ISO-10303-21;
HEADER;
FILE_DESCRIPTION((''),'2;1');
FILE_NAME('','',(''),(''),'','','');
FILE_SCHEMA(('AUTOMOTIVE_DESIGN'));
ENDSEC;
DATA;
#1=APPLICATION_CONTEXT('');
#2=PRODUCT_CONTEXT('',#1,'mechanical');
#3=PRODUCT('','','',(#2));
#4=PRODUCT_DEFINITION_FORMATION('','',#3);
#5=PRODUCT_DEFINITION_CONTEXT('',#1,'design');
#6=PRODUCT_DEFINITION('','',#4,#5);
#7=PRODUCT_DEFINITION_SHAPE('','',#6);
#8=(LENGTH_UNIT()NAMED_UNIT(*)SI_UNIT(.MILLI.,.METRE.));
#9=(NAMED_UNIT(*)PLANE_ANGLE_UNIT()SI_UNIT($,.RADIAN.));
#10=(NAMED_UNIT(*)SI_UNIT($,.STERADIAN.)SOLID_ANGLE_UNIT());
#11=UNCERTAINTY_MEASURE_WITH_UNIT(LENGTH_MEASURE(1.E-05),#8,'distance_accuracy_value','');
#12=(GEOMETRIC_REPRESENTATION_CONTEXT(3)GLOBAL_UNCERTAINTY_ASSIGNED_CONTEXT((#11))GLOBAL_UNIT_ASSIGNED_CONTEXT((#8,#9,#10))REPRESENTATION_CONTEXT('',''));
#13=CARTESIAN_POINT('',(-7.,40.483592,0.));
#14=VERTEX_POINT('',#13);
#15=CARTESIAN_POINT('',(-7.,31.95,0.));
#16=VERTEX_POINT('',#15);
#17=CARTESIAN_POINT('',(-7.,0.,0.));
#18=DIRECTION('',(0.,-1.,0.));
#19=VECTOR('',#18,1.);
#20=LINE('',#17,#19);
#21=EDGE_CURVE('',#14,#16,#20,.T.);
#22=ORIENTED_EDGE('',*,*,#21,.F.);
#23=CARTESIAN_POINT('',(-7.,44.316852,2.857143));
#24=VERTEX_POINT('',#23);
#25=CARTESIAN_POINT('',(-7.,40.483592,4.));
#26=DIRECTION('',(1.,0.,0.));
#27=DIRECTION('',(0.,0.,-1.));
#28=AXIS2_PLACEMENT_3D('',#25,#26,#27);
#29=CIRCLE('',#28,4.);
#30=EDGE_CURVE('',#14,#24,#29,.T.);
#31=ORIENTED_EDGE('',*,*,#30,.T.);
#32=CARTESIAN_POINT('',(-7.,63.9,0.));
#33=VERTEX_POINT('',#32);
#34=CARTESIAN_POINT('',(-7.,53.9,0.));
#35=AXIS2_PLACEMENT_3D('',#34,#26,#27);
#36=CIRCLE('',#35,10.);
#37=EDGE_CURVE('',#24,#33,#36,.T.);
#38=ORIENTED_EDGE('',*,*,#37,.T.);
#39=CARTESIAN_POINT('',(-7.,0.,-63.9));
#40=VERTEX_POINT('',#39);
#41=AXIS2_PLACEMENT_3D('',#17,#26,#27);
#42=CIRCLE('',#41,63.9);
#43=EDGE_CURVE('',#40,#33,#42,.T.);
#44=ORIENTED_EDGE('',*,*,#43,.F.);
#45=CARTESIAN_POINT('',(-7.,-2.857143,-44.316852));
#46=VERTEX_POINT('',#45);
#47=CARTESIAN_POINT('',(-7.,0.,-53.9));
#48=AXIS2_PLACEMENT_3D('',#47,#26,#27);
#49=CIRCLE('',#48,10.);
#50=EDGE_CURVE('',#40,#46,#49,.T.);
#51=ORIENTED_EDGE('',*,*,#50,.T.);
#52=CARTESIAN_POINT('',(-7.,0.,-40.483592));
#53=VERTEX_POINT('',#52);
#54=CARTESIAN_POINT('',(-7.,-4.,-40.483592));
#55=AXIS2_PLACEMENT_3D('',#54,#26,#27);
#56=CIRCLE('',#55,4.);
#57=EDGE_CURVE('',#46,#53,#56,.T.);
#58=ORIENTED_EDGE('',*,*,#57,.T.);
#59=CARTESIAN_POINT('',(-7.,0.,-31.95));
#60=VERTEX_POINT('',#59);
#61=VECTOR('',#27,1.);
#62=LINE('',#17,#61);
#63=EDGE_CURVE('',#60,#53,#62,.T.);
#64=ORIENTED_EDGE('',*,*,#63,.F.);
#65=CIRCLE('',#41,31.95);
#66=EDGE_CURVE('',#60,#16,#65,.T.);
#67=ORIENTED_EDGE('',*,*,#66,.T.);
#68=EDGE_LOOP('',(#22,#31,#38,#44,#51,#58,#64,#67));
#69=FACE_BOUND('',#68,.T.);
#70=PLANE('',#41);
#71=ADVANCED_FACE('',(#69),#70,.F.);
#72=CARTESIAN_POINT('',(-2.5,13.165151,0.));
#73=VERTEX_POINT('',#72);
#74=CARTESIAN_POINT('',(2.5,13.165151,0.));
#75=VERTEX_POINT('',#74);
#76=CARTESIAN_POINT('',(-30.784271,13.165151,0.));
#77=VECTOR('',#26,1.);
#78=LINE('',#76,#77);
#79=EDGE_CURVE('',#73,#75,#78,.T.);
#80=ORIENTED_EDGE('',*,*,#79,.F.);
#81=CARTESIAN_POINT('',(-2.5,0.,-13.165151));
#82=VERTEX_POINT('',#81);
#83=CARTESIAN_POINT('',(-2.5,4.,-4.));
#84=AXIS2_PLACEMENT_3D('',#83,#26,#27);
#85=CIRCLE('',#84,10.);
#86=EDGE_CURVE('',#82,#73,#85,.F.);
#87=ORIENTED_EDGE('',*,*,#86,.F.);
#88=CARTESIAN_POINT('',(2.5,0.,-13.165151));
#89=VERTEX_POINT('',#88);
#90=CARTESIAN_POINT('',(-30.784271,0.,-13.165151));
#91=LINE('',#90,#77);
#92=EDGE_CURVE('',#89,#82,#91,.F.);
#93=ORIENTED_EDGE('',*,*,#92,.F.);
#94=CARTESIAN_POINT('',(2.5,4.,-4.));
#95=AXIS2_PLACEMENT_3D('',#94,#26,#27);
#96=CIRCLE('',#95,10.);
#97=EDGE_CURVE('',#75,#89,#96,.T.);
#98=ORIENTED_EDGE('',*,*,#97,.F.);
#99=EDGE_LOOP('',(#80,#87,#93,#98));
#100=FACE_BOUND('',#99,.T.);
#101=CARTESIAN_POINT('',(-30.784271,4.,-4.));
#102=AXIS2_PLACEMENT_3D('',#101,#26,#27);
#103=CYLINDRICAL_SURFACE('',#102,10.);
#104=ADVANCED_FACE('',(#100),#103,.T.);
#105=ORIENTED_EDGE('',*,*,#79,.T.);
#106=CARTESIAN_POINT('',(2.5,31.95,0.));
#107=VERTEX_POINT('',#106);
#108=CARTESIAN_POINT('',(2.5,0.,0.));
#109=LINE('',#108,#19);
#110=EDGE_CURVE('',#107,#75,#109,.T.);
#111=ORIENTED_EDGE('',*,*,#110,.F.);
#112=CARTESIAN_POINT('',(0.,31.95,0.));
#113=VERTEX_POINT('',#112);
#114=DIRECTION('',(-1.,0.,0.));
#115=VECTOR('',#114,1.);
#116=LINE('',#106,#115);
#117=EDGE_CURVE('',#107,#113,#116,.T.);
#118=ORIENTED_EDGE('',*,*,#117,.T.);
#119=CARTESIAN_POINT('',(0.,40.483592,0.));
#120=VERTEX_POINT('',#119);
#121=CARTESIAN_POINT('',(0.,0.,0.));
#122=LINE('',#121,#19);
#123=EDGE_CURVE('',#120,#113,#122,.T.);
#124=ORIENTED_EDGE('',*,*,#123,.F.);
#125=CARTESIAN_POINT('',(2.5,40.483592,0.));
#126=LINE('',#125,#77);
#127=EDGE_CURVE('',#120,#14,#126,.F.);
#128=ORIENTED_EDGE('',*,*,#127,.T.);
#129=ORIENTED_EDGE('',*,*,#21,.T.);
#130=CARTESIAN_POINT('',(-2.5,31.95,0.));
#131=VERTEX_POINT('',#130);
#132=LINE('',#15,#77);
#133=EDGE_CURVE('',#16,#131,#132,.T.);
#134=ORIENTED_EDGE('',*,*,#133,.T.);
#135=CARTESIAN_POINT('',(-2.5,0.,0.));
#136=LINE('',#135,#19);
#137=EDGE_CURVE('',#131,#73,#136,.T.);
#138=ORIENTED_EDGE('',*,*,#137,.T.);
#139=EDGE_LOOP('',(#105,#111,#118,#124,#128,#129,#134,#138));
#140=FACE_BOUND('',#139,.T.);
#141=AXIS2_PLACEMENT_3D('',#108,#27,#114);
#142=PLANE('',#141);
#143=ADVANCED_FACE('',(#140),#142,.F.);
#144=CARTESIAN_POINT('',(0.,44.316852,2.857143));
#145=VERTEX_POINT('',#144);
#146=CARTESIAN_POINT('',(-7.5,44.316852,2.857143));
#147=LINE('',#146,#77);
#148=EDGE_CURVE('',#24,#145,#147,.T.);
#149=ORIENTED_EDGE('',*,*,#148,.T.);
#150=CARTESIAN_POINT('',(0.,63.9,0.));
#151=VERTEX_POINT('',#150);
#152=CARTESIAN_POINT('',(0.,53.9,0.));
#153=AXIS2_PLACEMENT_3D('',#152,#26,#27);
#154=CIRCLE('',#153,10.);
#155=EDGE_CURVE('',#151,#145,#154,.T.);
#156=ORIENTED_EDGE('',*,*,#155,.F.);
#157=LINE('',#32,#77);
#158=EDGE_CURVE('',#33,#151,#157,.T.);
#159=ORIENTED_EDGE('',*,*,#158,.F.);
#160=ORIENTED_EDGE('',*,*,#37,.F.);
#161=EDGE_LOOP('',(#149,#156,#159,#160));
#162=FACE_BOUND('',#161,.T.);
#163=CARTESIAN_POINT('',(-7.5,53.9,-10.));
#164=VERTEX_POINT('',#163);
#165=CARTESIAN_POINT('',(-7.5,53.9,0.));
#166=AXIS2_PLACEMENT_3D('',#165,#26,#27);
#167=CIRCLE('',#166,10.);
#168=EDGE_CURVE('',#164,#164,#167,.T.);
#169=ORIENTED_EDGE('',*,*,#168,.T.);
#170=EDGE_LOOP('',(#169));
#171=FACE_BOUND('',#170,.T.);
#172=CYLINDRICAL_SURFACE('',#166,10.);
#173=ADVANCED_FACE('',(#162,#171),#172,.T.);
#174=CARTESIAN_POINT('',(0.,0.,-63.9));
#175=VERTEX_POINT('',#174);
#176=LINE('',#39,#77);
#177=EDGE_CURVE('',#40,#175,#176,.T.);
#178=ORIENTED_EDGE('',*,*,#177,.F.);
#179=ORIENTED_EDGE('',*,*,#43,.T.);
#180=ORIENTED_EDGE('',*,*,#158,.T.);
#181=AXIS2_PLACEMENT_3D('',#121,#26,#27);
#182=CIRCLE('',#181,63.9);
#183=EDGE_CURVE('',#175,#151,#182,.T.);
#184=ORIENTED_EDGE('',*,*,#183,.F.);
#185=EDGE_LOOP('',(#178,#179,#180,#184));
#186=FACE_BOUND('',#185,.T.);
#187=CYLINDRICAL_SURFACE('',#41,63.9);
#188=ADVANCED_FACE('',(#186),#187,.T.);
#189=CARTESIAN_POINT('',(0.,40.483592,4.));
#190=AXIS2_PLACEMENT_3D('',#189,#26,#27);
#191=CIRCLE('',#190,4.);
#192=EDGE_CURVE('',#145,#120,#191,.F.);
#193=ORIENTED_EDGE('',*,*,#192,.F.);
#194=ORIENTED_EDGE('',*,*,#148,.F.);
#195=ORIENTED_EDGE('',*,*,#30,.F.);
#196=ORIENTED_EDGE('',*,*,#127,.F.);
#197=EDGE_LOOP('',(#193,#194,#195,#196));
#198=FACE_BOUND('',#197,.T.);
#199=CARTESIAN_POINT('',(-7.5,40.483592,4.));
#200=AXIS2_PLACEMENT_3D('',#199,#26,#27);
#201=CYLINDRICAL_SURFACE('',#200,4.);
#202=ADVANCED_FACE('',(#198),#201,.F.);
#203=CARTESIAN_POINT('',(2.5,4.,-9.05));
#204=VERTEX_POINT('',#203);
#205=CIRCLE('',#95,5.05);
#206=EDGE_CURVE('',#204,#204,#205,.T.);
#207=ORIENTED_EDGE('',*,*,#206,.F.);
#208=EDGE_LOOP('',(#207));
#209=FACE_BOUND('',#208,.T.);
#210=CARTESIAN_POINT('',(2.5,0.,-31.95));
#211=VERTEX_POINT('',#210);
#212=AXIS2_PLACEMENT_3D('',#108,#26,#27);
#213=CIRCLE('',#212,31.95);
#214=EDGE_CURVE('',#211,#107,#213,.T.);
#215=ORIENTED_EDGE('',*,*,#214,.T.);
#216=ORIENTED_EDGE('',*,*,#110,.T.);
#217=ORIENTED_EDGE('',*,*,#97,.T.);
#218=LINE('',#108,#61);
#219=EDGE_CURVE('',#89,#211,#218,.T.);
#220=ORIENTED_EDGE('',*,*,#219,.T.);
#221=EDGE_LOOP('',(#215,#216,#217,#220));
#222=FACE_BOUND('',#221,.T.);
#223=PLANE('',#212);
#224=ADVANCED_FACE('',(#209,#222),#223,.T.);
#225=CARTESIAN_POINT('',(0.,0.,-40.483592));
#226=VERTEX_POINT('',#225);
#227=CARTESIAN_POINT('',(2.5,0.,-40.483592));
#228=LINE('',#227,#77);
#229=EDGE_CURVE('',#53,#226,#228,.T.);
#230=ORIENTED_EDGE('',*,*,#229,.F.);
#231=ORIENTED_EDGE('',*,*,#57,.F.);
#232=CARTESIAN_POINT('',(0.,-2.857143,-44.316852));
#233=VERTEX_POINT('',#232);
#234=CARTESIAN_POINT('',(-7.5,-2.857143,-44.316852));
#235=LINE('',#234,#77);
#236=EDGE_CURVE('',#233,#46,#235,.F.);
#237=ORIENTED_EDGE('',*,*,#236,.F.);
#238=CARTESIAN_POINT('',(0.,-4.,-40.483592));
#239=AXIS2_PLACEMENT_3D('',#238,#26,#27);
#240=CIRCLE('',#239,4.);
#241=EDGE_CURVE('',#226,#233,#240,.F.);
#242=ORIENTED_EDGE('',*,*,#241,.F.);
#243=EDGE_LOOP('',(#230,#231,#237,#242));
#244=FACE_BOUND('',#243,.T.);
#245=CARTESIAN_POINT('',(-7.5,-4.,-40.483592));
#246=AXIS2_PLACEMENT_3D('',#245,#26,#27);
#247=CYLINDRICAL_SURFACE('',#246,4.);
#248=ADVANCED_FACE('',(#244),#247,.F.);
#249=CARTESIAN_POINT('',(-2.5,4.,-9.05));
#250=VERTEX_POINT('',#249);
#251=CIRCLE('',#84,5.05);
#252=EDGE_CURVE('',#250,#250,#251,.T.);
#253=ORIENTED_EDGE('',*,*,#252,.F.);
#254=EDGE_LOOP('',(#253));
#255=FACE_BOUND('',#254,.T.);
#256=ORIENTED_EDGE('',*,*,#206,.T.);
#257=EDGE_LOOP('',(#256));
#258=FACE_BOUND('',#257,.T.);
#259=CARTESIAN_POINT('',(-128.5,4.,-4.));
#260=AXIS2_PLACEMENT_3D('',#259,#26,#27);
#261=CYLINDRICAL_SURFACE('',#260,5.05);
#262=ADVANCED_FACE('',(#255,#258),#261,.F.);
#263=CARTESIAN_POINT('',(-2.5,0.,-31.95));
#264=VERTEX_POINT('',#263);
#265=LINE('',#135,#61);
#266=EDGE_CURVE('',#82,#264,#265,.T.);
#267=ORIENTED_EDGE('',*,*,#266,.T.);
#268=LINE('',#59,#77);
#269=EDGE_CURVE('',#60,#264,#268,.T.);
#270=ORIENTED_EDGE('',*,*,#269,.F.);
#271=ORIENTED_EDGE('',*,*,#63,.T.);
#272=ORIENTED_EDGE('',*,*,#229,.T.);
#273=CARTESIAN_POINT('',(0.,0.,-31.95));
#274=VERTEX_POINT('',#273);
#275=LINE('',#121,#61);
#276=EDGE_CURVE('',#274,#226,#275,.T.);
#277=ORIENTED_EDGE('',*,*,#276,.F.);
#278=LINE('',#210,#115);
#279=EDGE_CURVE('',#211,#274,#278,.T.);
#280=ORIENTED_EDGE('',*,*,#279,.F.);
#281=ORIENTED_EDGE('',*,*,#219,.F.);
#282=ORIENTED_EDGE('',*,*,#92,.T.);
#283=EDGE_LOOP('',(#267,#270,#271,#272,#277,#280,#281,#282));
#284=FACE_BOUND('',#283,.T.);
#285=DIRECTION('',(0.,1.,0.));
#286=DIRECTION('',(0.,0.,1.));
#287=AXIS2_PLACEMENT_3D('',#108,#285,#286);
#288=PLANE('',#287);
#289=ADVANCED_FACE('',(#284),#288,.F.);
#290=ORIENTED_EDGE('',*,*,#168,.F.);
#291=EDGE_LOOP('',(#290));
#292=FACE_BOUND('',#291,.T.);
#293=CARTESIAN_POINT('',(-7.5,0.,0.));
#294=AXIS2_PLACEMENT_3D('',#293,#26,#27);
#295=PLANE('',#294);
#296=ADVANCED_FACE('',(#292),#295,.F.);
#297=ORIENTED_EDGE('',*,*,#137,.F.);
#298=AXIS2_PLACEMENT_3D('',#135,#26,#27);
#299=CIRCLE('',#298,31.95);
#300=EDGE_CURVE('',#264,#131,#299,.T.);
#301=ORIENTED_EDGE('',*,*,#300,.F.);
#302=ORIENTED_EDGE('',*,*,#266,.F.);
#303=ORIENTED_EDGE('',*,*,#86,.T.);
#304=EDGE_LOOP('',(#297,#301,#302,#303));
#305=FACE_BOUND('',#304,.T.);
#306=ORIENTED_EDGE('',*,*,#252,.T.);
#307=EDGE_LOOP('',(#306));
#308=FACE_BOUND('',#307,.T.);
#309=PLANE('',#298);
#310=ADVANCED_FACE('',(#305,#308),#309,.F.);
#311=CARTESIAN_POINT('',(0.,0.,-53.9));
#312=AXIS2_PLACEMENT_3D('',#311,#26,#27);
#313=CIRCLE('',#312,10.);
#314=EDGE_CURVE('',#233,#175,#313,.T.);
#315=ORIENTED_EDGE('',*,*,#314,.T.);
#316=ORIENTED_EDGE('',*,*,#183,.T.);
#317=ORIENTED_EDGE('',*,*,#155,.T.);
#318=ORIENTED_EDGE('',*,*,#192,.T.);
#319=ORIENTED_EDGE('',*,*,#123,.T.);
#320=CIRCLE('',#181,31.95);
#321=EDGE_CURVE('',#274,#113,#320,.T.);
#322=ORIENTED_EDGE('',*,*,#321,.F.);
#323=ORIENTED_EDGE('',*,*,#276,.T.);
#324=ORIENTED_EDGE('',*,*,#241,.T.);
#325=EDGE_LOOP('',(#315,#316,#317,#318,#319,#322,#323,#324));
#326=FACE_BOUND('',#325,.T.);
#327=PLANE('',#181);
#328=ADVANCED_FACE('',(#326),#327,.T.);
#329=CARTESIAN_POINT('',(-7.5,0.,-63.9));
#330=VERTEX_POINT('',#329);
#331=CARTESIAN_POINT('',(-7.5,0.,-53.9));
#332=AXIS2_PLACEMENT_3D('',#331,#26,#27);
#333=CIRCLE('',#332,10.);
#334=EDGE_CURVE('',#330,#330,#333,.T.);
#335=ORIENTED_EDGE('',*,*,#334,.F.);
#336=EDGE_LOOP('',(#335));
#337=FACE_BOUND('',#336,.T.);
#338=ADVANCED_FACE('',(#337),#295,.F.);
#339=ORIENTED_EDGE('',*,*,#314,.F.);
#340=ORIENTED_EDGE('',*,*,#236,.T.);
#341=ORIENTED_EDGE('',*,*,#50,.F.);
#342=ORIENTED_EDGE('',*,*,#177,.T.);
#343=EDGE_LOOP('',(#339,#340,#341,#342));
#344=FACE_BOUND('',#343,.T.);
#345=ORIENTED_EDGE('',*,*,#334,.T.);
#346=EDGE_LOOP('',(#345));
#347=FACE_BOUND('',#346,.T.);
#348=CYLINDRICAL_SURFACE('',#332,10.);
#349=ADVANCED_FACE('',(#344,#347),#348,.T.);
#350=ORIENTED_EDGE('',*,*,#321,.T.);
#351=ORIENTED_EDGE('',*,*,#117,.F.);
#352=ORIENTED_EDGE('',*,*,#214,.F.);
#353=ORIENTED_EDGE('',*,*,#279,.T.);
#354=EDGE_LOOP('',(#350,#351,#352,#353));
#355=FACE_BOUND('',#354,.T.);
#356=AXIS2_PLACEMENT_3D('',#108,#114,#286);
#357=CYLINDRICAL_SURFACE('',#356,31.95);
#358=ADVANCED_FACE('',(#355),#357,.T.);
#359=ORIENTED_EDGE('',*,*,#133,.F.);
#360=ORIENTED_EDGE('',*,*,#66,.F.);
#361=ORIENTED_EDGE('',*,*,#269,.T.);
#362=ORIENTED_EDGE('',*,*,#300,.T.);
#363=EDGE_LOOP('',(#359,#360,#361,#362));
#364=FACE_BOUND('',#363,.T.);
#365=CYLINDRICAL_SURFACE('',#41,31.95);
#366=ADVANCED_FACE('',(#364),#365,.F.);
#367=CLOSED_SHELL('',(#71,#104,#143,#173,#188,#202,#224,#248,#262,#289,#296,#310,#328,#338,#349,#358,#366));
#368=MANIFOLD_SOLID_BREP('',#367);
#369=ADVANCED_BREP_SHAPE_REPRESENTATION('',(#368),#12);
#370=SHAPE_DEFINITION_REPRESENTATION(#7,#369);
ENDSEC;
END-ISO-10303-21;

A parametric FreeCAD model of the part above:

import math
import FreeCAD as App
import Part
import Sketcher


def edges_at(feature, points):
    """Names of the edges that pass closest to the given points."""
    edges = feature.Shape.Edges
    near = lambda p: min(range(len(edges)), key=lambda i: edges[i].distToShape(Part.Vertex(*p))[0])
    return sorted({f"Edge{near(p) + 1}" for p in points})

doc = App.newDocument("Part")
body = doc.addObject("PartDesign::Body", "Body")

sketch1 = body.newObject("Sketcher::SketchObject", "Sketch")
sketch1.AttachmentSupport = (doc.getObject("YZ_Plane"), [""])
sketch1.MapMode = "FlatFace"
sketch1.addGeometry(Part.ArcOfCircle(Part.Circle(App.Vector(0, 0, 0), App.Vector(0, 0, 1), 32), math.radians(-90), math.radians(0)), False)
sketch1.addGeometry(Part.LineSegment(App.Vector(32, 0, 0), App.Vector(0, 0, 0)), False)
sketch1.addGeometry(Part.LineSegment(App.Vector(0, 0, 0), App.Vector(0, -32, 0)), False)
sketch1.addConstraint(Sketcher.Constraint("Coincident", 0, 2, 1, 1))
sketch1.addConstraint(Sketcher.Constraint("Coincident", 1, 2, 2, 1))
sketch1.addConstraint(Sketcher.Constraint("Coincident", 2, 2, 0, 1))
sketch1.addConstraint(Sketcher.Constraint("Horizontal", 1))
sketch1.addConstraint(Sketcher.Constraint("Vertical", 2))
sketch1.addConstraint(Sketcher.Constraint("Coincident", 0, 3, -1, 1))
sketch1.addConstraint(Sketcher.Constraint("Coincident", 1, 2, -1, 1))
sketch1.addConstraint(Sketcher.Constraint("Radius", 0, 31.95))
pad1 = body.newObject("PartDesign::Pad", "Pad")
pad1.Profile = sketch1
pad1.Length = 5
pad1.Midplane = True

sketch2 = body.newObject("Sketcher::SketchObject", "Sketch001")
sketch2.AttachmentSupport = (doc.getObject("YZ_Plane"), [""])
sketch2.MapMode = "FlatFace"
sketch2.addGeometry(Part.ArcOfCircle(Part.Circle(App.Vector(54, 0, 0), App.Vector(0, 0, 1), 10), math.radians(180), math.radians(270)), False)
sketch2.addGeometry(Part.LineSegment(App.Vector(44, 0, 0), App.Vector(32, 0, 0)), False)
sketch2.addGeometry(Part.ArcOfCircle(Part.Circle(App.Vector(0, 0, 0), App.Vector(0, 0, 1), 32), math.radians(-90), math.radians(0)), False)
sketch2.addGeometry(Part.LineSegment(App.Vector(0, -32, 0), App.Vector(0, -44, 0)), False)
sketch2.addGeometry(Part.ArcOfCircle(Part.Circle(App.Vector(0, -54, 0), App.Vector(0, 0, 1), 10), math.radians(-90), math.radians(90)), False)
sketch2.addGeometry(Part.ArcOfCircle(Part.Circle(App.Vector(0, 0, 0), App.Vector(0, 0, 1), 64), math.radians(-90), math.radians(0)), False)
sketch2.addGeometry(Part.ArcOfCircle(Part.Circle(App.Vector(54, 0, 0), App.Vector(0, 0, 1), 10), math.radians(-90), math.radians(0)), False)
sketch2.addConstraint(Sketcher.Constraint("Coincident", 0, 1, 1, 1))
sketch2.addConstraint(Sketcher.Constraint("Coincident", 1, 2, 2, 2))
sketch2.addConstraint(Sketcher.Constraint("Coincident", 2, 1, 3, 1))
sketch2.addConstraint(Sketcher.Constraint("Coincident", 3, 2, 4, 2))
sketch2.addConstraint(Sketcher.Constraint("Tangent", 4, 1, 5, 1))
sketch2.addConstraint(Sketcher.Constraint("Tangent", 5, 2, 6, 2))
sketch2.addConstraint(Sketcher.Constraint("Tangent", 6, 1, 0, 2))
sketch2.addConstraint(Sketcher.Constraint("Horizontal", 1))
sketch2.addConstraint(Sketcher.Constraint("Vertical", 3))
sketch2.addConstraint(Sketcher.Constraint("Coincident", 2, 3, -1, 1))
sketch2.addConstraint(Sketcher.Constraint("Coincident", 5, 3, -1, 1))
sketch2.addConstraint(Sketcher.Constraint("Equal", 0, 4))
sketch2.addConstraint(Sketcher.Constraint("Equal", 4, 6))
sketch2.addConstraint(Sketcher.Constraint("PointOnObject", 0, 3, -1))
sketch2.addConstraint(Sketcher.Constraint("PointOnObject", 4, 3, -2))
sketch2.addConstraint(Sketcher.Constraint("PointOnObject", 0, 1, -1))
sketch2.addConstraint(Sketcher.Constraint("PointOnObject", 2, 1, -2))
sketch2.addConstraint(Sketcher.Constraint("Vertical", 0, 3, 6, 1))
sketch2.addConstraint(Sketcher.Constraint("Radius", 0, 10.0))
sketch2.addConstraint(Sketcher.Constraint("Radius", 5, 63.9))
sketch2.addConstraint(Sketcher.Constraint("Radius", 2, 31.95))
pad2 = body.newObject("PartDesign::Pad", "Pad001")
pad2.Profile = sketch2
pad2.Length = 7
pad2.Reversed = True

sketch3 = body.newObject("Sketcher::SketchObject", "Sketch002")
sketch3.AttachmentSupport = (doc.getObject("YZ_Plane"), [""])
sketch3.MapMode = "FlatFace"
sketch3.addGeometry(Part.Circle(App.Vector(54, 0, 0), App.Vector(0, 0, 1), 10), False)
sketch3.addGeometry(Part.Circle(App.Vector(0, -54, 0), App.Vector(0, 0, 1), 10), False)
sketch3.addConstraint(Sketcher.Constraint("Equal", 0, 1))
sketch3.addConstraint(Sketcher.Constraint("PointOnObject", 0, 3, -1))
sketch3.addConstraint(Sketcher.Constraint("PointOnObject", 1, 3, -2))
sketch3.addConstraint(Sketcher.Constraint("Diameter", 0, 20.0))
sketch3.addConstraint(Sketcher.Constraint("DistanceX", -1, 1, 0, 3, 53.9))
sketch3.addConstraint(Sketcher.Constraint("DistanceY", 1, 3, -1, 1, 53.9))
pad3 = body.newObject("PartDesign::Pad", "Pad002")
pad3.Profile = sketch3
pad3.Length = 7.5
pad3.Reversed = True
doc.recompute()

fillet = body.newObject("PartDesign::Fillet", "Fillet")
fillet.Base = (pad3, edges_at(pad3, [(0, 0, 0)]))
fillet.Radius = 4
doc.recompute()

fillet2 = body.newObject("PartDesign::Fillet", "Fillet001")
fillet2.Base = (fillet, edges_at(fillet, [(-3.5, 43.9, 0), (-3.5, 0, -43.9)]))
fillet2.Radius = 4

sketch4 = body.newObject("Sketcher::SketchObject", "Sketch003")
sketch4.AttachmentSupport = (doc.getObject("YZ_Plane"), [""])
sketch4.MapMode = "FlatFace"
sketch4.AttachmentOffset = App.Placement(App.Vector(0, 0, 2.5), App.Rotation())
sketch4.addGeometry(Part.Circle(App.Vector(4, -4, 0), App.Vector(0, 0, 1), 10), False)
sketch4.addConstraint(Sketcher.Constraint("Diameter", 0, 20.0))
sketch4.addConstraint(Sketcher.Constraint("DistanceX", -1, 1, 0, 3, 4.0))
sketch4.addConstraint(Sketcher.Constraint("DistanceY", 0, 3, -1, 1, 4.0))
pad4 = body.newObject("PartDesign::Pad", "Pad003")
pad4.Profile = sketch4
pad4.Length = 5
pad4.Reversed = True

sketch5 = body.newObject("Sketcher::SketchObject", "Sketch004")
sketch5.AttachmentSupport = (doc.getObject("YZ_Plane"), [""])
sketch5.MapMode = "FlatFace"
sketch5.AttachmentOffset = App.Placement(App.Vector(0, 0, 2.5), App.Rotation())
sketch5.addGeometry(Part.Circle(App.Vector(4, -4, 0), App.Vector(0, 0, 1), 5), False)
sketch5.addConstraint(Sketcher.Constraint("Diameter", 0, 10.1))
sketch5.addConstraint(Sketcher.Constraint("DistanceX", -1, 1, 0, 3, 4.0))
sketch5.addConstraint(Sketcher.Constraint("DistanceY", 0, 3, -1, 1, 4.0))
pocket1 = body.newObject("PartDesign::Pocket", "Pocket")
pocket1.Profile = sketch5
pocket1.Length = 131

doc.recompute()
